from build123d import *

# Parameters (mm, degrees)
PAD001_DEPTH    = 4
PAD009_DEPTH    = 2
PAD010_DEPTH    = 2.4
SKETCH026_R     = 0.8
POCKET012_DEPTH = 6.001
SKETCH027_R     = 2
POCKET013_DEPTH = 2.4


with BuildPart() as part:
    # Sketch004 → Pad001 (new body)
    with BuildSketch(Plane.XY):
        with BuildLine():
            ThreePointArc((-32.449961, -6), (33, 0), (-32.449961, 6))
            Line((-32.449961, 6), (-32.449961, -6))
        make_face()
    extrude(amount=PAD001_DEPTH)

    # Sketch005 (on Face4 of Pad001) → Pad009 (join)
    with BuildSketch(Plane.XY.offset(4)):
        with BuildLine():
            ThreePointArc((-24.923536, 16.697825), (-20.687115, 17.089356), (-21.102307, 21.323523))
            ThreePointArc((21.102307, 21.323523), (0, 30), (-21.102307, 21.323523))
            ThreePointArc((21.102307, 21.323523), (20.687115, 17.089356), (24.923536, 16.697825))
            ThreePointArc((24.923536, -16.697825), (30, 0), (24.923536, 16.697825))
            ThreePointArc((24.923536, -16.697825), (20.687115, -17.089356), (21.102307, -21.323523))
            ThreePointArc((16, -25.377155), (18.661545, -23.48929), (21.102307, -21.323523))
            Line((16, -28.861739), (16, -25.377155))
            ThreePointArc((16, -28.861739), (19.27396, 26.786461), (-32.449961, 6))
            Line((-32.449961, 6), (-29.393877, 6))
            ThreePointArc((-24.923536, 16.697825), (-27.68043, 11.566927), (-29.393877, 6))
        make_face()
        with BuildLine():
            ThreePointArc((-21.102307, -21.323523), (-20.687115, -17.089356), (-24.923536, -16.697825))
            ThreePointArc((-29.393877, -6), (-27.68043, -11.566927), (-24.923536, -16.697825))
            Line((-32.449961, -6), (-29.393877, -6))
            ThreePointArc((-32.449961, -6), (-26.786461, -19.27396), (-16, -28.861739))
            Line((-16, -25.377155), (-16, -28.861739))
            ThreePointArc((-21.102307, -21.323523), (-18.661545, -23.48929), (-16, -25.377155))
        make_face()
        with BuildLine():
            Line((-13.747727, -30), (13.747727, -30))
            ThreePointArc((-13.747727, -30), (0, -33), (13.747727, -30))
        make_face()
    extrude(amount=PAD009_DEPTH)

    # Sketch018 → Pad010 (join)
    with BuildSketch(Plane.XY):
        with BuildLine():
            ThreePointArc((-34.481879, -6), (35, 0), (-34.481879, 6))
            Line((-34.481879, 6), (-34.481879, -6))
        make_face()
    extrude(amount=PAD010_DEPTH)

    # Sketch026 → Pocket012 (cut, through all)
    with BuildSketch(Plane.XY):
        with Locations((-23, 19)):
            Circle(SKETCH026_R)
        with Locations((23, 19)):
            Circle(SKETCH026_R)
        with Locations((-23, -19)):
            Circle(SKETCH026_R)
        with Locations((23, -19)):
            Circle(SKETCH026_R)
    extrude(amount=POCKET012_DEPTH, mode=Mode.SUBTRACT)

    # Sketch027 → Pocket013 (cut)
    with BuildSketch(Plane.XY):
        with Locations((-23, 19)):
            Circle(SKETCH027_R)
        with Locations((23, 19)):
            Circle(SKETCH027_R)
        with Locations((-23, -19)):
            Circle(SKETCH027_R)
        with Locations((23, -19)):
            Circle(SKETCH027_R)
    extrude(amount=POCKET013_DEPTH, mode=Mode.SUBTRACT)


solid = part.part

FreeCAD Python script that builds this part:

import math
import FreeCAD as App
import Part
import Sketcher
Q = App.Units.Quantity

doc = App.newDocument("Part")
body = doc.addObject("PartDesign::Body", "Body")

sketch1 = body.newObject("Sketcher::SketchObject", "Sketch")
sketch1.AttachmentSupport = (doc.getObject("XY_Plane"), [""])
sketch1.MapMode = "FlatFace"
sketch1.addGeometry([
    Part.ArcOfCircle(Part.Circle(App.Vector(0, 0, 0), App.Vector(0, 0, 1), 33), math.radians(-169.524318), math.radians(169.524318)),
    Part.LineSegment(App.Vector(-32.449961, 6, 0), App.Vector(-32.449961, -6, 0)),
], False)
sketch1.addConstraint([
    Sketcher.Constraint("Coincident", 0, 1, 1, 2),
    Sketcher.Constraint("Coincident", 1, 1, 0, 2),
    Sketcher.Constraint("Vertical", 1),
    Sketcher.Constraint("Coincident", 0, 3, -1, 1),
    Sketcher.Constraint("Radius", 0, Q("33 mm")),
    Sketcher.Constraint("DistanceY", 1, 2, 1, 1, Q("12 mm")),
])
pad1 = body.newObject("PartDesign::Pad", "Pad")
pad1.Profile = sketch1
pad1.Length = 4

sketch2 = body.newObject("Sketcher::SketchObject", "Sketch001")
sketch2.AttachmentSupport = (doc.getObject("XY_Plane"), [""])
sketch2.MapMode = "FlatFace"
sketch2.AttachmentOffset = App.Placement(App.Vector(0, 0, 4), App.Rotation())
sketch2.addGeometry([
    Part.ArcOfCircle(Part.Circle(App.Vector(-23, 19, 0), App.Vector(0, 0, 1), 3), math.radians(-129.87976), math.radians(50.76042)),
    Part.ArcOfCircle(Part.Circle(App.Vector(0, 0, 0), App.Vector(0, 0, 1), 30), math.radians(45.298747), math.radians(134.701253)),
    Part.ArcOfCircle(Part.Circle(App.Vector(23, 19, 0), App.Vector(0, 0, 1), 3), math.radians(129.23958), math.radians(309.87976)),
    Part.ArcOfCircle(Part.Circle(App.Vector(-0.000001, 0, 0), App.Vector(0, 0, 1), 30.000001), math.radians(-33.820587), math.radians(33.820587)),
    Part.ArcOfCircle(Part.Circle(App.Vector(23, -19, 0), App.Vector(0, 0, 1), 3), math.radians(50.12024), math.radians(230.76042)),
    Part.ArcOfCircle(Part.Circle(App.Vector(0.00002, -0.000026, 0), App.Vector(0, 0, 1), 29.999967), math.radians(-57.769054), math.radians(-45.298741)),
    Part.LineSegment(App.Vector(16, -25.377155, 0), App.Vector(16, -28.861739, 0)),
    Part.ArcOfCircle(Part.Circle(App.Vector(0, 0, 0), App.Vector(0, 0, 1), 33), math.radians(-60.997455), math.radians(169.524319)),
    Part.LineSegment(App.Vector(-32.449961, 6, 0), App.Vector(-29.393877, 6, 0)),
    Part.ArcOfCircle(Part.Circle(App.Vector(0, 0, 0), App.Vector(0, 0, 1), 30.000001), math.radians(146.179413), math.radians(168.463041)),
    Part.ArcOfCircle(Part.Circle(App.Vector(-23, -19, 0), App.Vector(0, 0, 1), 3), math.radians(-50.76042), math.radians(129.87976)),
    Part.ArcOfCircle(Part.Circle(App.Vector(0, 0, 0), App.Vector(0, 0, 1), 30.000001), math.radians(-168.463041), math.radians(-146.179413)),
    Part.LineSegment(App.Vector(-29.393877, -6, 0), App.Vector(-32.449961, -6, 0)),
    Part.ArcOfCircle(Part.Circle(App.Vector(-0.000007, -0.000005, 0), App.Vector(0, 0, 1), 32.999992), math.radians(-169.524325), math.radians(-119.00254)),
    Part.LineSegment(App.Vector(-16, -28.861739, 0), App.Vector(-16, -25.377155, 0)),
    Part.ArcOfCircle(Part.Circle(App.Vector(-0.00002, -0.000026, 0), App.Vector(0, 0, 1), 29.999967), math.radians(-134.701259), math.radians(-122.230946)),
    Part.LineSegment(App.Vector(13.747727, -30, 0), App.Vector(-13.747727, -30, 0)),
    Part.ArcOfCircle(Part.Circle(App.Vector(0, 0, 0), App.Vector(0, 0, 1), 33), math.radians(-114.619977), math.radians(-65.380023)),
], False)
sketch2.addConstraint([
    Sketcher.Constraint("Coincident", 0, 2, 1, 2),
    Sketcher.Constraint("Coincident", 1, 1, 2, 1),
    Sketcher.Constraint("Coincident", 2, 2, 3, 2),
    Sketcher.Constraint("Coincident", 3, 1, 4, 1),
    Sketcher.Constraint("Coincident", 4, 2, 5, 2),
    Sketcher.Constraint("Coincident", 5, 1, 6, 1),
    Sketcher.Constraint("Coincident", 6, 2, 7, 1),
    Sketcher.Constraint("Coincident", 7, 2, 8, 1),
    Sketcher.Constraint("Coincident", 8, 2, 9, 2),
    Sketcher.Constraint("Coincident", 9, 1, 0, 1),
    Sketcher.Constraint("Coincident", 10, 2, 11, 2),
    Sketcher.Constraint("Coincident", 11, 1, 12, 1),
    Sketcher.Constraint("Coincident", 12, 2, 13, 1),
    Sketcher.Constraint("Coincident", 13, 2, 14, 1),
    Sketcher.Constraint("Coincident", 14, 2, 15, 2),
    Sketcher.Constraint("Coincident", 15, 1, 10, 1),
    Sketcher.Constraint("Coincident", 16, 1, 17, 2),
    Sketcher.Constraint("Coincident", 17, 1, 16, 2),
    Sketcher.Constraint("Vertical", 6),
    Sketcher.Constraint("Horizontal", 8),
    Sketcher.Constraint("Horizontal", 12),
    Sketcher.Constraint("Vertical", 14),
    Sketcher.Constraint("Horizontal", 16),
    Sketcher.Constraint("Coincident", 1, 3, -1, 1),
    Sketcher.Constraint("Coincident", 3, 3, -1, 1),
    Sketcher.Constraint("Coincident", 7, 3, -1, 1),
    Sketcher.Constraint("Coincident", 9, 3, -1, 1),
    Sketcher.Constraint("Coincident", 11, 3, -1, 1),
    Sketcher.Constraint("Coincident", 13, 3, -1, 1),
    Sketcher.Constraint("Coincident", 17, 3, -1, 1),
    Sketcher.Constraint("Equal", 0, 2),
    Sketcher.Constraint("Equal", 1, 3),
    Sketcher.Constraint("Equal", 2, 4),
    Sketcher.Constraint("Equal", 3, 9),
    Sketcher.Constraint("Equal", 4, 10),
    Sketcher.Constraint("Equal", 9, 11),
    Sketcher.Constraint("Equal", 5, 15),
    Sketcher.Constraint("Equal", 7, 17),
    Sketcher.Constraint("Symmetric", 0, 3, 4, 3, -1, 1),
    Sketcher.Constraint("Symmetric", 2, 3, 10, 3, -1, 1),
    Sketcher.Constraint("Symmetric", 0, 3, 2, 3, -2),
    Sketcher.Constraint("Symmetric", 5, 3, 15, 3, -2),
    Sketcher.Constraint("Symmetric", 6, 2, 13, 2, -2),
    Sketcher.Constraint("Vertical", 1, 1, 4, 2),
    Sketcher.Constraint("Vertical", 8, 2, 11, 1),
    Sketcher.Constraint("Radius", 0, Q("3 mm")),
    Sketcher.Constraint("Radius", 1, Q("30 mm")),
    Sketcher.Constraint("Radius", 7, Q("33 mm")),
    Sketcher.Constraint("DistanceX", 0, 3, -1, 1, Q("23 mm")),
    Sketcher.Constraint("DistanceY", -1, 1, 0, 3, Q("19 mm")),
    Sketcher.Constraint("DistanceX", -1, 1, 5, 1, Q("16 mm")),
    Sketcher.Constraint("DistanceY", -1, 1, 7, 2, Q("6 mm")),
    Sketcher.Constraint("DistanceY", 16, 1, -1, 1, Q("30 mm")),
    Sketcher.Constraint("Radius", 5, Q("29.999967 mm")),
    Sketcher.Constraint("DistanceY", 3, 1, 5, 3, Q("16.697799 mm")),
])
pad2 = body.newObject("PartDesign::Pad", "Pad001")
pad2.Profile = sketch2
pad2.Length = 2

sketch3 = body.newObject("Sketcher::SketchObject", "Sketch002")
sketch3.AttachmentSupport = (doc.getObject("XY_Plane"), [""])
sketch3.MapMode = "FlatFace"
sketch3.addGeometry([
    Part.ArcOfCircle(Part.Circle(App.Vector(0, 0, 0), App.Vector(0, 0, 1), 35), math.radians(-170.12911), math.radians(170.12911)),
    Part.LineSegment(App.Vector(-34.481879, 6, 0), App.Vector(-34.481879, -6, 0)),
], False)
sketch3.addConstraint([
    Sketcher.Constraint("Coincident", 0, 1, 1, 2),
    Sketcher.Constraint("Coincident", 1, 1, 0, 2),
    Sketcher.Constraint("Vertical", 1),
    Sketcher.Constraint("Coincident", 0, 3, -1, 1),
    Sketcher.Constraint("Radius", 0, Q("35 mm")),
    Sketcher.Constraint("DistanceY", 1, 2, 1, 1, Q("12 mm")),
])
pad3 = body.newObject("PartDesign::Pad", "Pad002")
pad3.Profile = sketch3
pad3.Length = 2.4

sketch4 = body.newObject("Sketcher::SketchObject", "Sketch003")
sketch4.AttachmentSupport = (doc.getObject("XY_Plane"), [""])
sketch4.MapMode = "FlatFace"
sketch4.addGeometry([
    Part.Circle(App.Vector(-23, 19, 0), App.Vector(0, 0, 1), 0.8),
    Part.Circle(App.Vector(23, 19, 0), App.Vector(0, 0, 1), 0.8),
    Part.Circle(App.Vector(-23, -19, 0), App.Vector(0, 0, 1), 0.8),
    Part.Circle(App.Vector(23, -19, 0), App.Vector(0, 0, 1), 0.8),
], False)
sketch4.addConstraint([
    Sketcher.Constraint("Equal", 0, 1),
    Sketcher.Constraint("Equal", 1, 2),
    Sketcher.Constraint("Equal", 2, 3),
    Sketcher.Constraint("Symmetric", 1, 3, 2, 3, -1, 1),
    Sketcher.Constraint("Symmetric", 0, 3, 3, 3, -1, 1),
    Sketcher.Constraint("Symmetric", 0, 3, 1, 3, -2),
    Sketcher.Constraint("Diameter", 0, Q("1.6 mm")),
    Sketcher.Constraint("DistanceX", 0, 3, -1, 1, Q("23 mm")),
    Sketcher.Constraint("DistanceY", -1, 1, 0, 3, Q("19 mm")),
])
pocket1 = body.newObject("PartDesign::Pocket", "Pocket")
pocket1.Profile = sketch4
pocket1.Type = "ThroughAll"
pocket1.Reversed = True

sketch5 = body.newObject("Sketcher::SketchObject", "Sketch004")
sketch5.AttachmentSupport = (doc.getObject("XY_Plane"), [""])
sketch5.MapMode = "FlatFace"
sketch5.addGeometry([
    Part.Circle(App.Vector(-23, 19, 0), App.Vector(0, 0, 1), 2),
    Part.Circle(App.Vector(23, 19, 0), App.Vector(0, 0, 1), 2),
    Part.Circle(App.Vector(-23, -19, 0), App.Vector(0, 0, 1), 2),
    Part.Circle(App.Vector(23, -19, 0), App.Vector(0, 0, 1), 2),
], False)
sketch5.addConstraint([
    Sketcher.Constraint("Equal", 0, 1),
    Sketcher.Constraint("Equal", 1, 2),
    Sketcher.Constraint("Equal", 2, 3),
    Sketcher.Constraint("Symmetric", 1, 3, 2, 3, -1, 1),
    Sketcher.Constraint("Symmetric", 0, 3, 3, 3, -1, 1),
    Sketcher.Constraint("Symmetric", 0, 3, 1, 3, -2),
    Sketcher.Constraint("Diameter", 0, Q("4 mm")),
    Sketcher.Constraint("DistanceX", 0, 3, -1, 1, Q("23 mm")),
    Sketcher.Constraint("DistanceY", -1, 1, 0, 3, Q("19 mm")),
])
pocket2 = body.newObject("PartDesign::Pocket", "Pocket001")
pocket2.Profile = sketch5
pocket2.Length = 2.4
pocket2.Reversed = True

doc.recompute()
